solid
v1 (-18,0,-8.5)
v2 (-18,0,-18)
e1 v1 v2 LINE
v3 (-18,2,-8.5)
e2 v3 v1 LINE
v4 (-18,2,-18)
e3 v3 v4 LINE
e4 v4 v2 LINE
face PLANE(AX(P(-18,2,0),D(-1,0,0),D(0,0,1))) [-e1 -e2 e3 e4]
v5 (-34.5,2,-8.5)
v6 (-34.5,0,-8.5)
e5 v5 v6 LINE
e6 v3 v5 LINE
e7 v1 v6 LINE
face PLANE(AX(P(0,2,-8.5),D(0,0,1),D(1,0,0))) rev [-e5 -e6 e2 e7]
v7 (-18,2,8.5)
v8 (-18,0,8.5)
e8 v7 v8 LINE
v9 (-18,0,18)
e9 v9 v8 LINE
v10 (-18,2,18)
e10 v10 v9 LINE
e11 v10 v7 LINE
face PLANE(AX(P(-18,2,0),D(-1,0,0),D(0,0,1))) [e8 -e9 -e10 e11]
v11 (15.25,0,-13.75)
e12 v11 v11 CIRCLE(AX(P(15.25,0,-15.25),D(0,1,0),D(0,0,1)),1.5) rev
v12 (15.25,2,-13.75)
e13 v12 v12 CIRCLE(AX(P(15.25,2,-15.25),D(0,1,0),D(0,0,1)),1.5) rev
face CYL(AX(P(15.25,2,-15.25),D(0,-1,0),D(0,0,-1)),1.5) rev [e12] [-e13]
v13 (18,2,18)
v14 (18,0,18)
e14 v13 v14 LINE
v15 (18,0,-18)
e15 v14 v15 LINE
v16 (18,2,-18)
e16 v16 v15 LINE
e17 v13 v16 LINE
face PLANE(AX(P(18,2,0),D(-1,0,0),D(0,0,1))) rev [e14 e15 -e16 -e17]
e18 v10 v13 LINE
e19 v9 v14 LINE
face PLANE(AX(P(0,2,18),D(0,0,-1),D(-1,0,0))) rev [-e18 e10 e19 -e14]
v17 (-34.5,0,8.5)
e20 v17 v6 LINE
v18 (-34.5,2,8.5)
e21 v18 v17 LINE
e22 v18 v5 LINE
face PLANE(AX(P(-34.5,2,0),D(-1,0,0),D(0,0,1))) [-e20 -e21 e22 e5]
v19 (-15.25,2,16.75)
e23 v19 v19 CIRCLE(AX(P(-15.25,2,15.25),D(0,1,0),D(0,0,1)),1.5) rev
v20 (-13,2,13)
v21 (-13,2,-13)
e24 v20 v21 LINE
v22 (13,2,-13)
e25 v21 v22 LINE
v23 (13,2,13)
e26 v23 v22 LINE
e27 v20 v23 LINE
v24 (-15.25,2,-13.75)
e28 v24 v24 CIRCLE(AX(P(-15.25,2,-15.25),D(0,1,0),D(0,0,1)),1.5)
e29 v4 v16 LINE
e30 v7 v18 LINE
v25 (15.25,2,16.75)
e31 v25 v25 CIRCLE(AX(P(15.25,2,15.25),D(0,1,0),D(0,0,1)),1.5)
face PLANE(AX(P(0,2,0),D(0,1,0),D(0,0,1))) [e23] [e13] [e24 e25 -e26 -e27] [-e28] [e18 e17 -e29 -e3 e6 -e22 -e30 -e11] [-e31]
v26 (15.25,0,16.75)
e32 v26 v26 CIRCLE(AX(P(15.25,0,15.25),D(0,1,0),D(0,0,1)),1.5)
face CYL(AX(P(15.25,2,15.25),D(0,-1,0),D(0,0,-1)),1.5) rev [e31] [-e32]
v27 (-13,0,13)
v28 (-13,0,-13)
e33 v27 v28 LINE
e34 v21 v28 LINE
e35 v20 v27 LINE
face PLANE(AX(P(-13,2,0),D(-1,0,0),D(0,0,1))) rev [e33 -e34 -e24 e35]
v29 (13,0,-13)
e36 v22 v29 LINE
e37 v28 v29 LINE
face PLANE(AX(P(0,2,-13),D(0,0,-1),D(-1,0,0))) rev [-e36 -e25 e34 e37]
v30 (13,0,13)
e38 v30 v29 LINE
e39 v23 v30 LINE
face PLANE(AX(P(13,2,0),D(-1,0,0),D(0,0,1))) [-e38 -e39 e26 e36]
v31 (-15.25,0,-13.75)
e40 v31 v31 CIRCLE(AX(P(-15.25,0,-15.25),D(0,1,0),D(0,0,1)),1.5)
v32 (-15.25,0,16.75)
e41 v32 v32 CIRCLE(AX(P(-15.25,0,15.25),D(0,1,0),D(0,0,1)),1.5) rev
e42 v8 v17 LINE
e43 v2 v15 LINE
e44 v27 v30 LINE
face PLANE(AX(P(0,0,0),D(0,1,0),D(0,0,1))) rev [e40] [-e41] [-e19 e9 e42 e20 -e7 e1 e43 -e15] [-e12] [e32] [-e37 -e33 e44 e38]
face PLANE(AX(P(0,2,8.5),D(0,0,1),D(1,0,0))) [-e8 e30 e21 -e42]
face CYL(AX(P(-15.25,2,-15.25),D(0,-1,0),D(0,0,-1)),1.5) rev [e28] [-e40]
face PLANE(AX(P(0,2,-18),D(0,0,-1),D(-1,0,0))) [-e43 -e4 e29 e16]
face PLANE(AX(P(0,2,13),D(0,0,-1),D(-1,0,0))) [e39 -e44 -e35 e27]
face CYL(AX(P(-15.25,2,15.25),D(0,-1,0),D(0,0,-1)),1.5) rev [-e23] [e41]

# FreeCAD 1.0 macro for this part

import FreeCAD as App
import Part
import Sketcher

V = App.Vector
Q = App.Units.Quantity


def add_polygon(sketch, points):
    """Adds a closed chain of lines whose ends are joined by coincident constraints."""
    first, n = sketch.GeometryCount, len(points)
    for a, b in zip(points, points[1:] + points[:1]):
        sketch.addGeometry(Part.LineSegment(App.Vector(*a, 0), App.Vector(*b, 0)), False)
    for i in range(n):
        sketch.addConstraint(Sketcher.Constraint("Coincident", first + i, 2, first + (i + 1) % n, 1))

doc = App.newDocument("Part")
body = doc.addObject("PartDesign::Body", "Body")

# Sketch on XZ plane
sketch1 = body.newObject("Sketcher::SketchObject", "Sketch")
sketch1.AttachmentSupport = (doc.getObject("XZ_Plane"), [""])
sketch1.MapMode = "FlatFace"
add_polygon(sketch1, [(-34.5, -8.5), (-34.5, 8.5), (-18, 8.5), (-18, 18), (18, 18), (18, -18), (-18, -18), (-18, -8.5)])  # lines 0-7
add_polygon(sketch1, [(-13, -13), (13, -13), (13, 13), (-13, 13)])  # lines 8-11
sketch1.addGeometry(Part.Circle(V(-15.2, -15.2, 0), V(0, 0, 1), 1.5), False)  # 12
sketch1.addGeometry(Part.Circle(V(15.2, -15.2, 0), V(0, 0, 1), 1.5), False)  # 13
sketch1.addGeometry(Part.Circle(V(-15.2, 15.2, 0), V(0, 0, 1), 1.5), False)  # 14
sketch1.addGeometry(Part.Circle(V(15.2, 15.2, 0), V(0, 0, 1), 1.5), False)  # 15
sketch1.addConstraint(Sketcher.Constraint("Vertical", 0))
sketch1.addConstraint(Sketcher.Constraint("Horizontal", 1))
sketch1.addConstraint(Sketcher.Constraint("Vertical", 2))
sketch1.addConstraint(Sketcher.Constraint("Horizontal", 3))
sketch1.addConstraint(Sketcher.Constraint("Vertical", 4))
sketch1.addConstraint(Sketcher.Constraint("Horizontal", 5))
sketch1.addConstraint(Sketcher.Constraint("Vertical", 6))
sketch1.addConstraint(Sketcher.Constraint("Horizontal", 7))
sketch1.addConstraint(Sketcher.Constraint("Horizontal", 8))
sketch1.addConstraint(Sketcher.Constraint("Vertical", 9))
sketch1.addConstraint(Sketcher.Constraint("Horizontal", 10))
sketch1.addConstraint(Sketcher.Constraint("Vertical", 11))
sketch1.addConstraint(Sketcher.Constraint("Equal", 12, 13))
sketch1.addConstraint(Sketcher.Constraint("Equal", 13, 14))
sketch1.addConstraint(Sketcher.Constraint("Equal", 14, 15))
sketch1.addConstraint(Sketcher.Constraint("Symmetric", 13, 3, 14, 3, -1, 1))
sketch1.addConstraint(Sketcher.Constraint("Symmetric", 12, 3, 15, 3, -1, 1))
sketch1.addConstraint(Sketcher.Constraint("Symmetric", 2, 2, 4, 2, -1, 1))
sketch1.addConstraint(Sketcher.Constraint("Symmetric", 8, 2, 10, 2, -1, 1))
sketch1.addConstraint(Sketcher.Constraint("Symmetric", 12, 3, 13, 3, -2))
sketch1.addConstraint(Sketcher.Constraint("Symmetric", 1, 2, 6, 2, -1))
sketch1.addConstraint(Sketcher.Constraint("Equal", 5, 4))
sketch1.addConstraint(Sketcher.Constraint("Equal", 10, 9))
sketch1.addConstraint(Sketcher.Constraint("Diameter", 12, Q("3 mm")))
sketch1.addConstraint(Sketcher.Constraint("DistanceX", 3, 1, 3, 2, Q("36 mm")))
sketch1.addConstraint(Sketcher.Constraint("DistanceX", 8, 1, 8, 2, Q("26 mm")))
sketch1.addConstraint(Sketcher.Constraint("DistanceY", 0, 1, 0, 2, Q("17 mm")))
sketch1.addConstraint(Sketcher.Constraint("DistanceX", 1, 1, 1, 2, Q("16.5 mm")))
sketch1.addConstraint(Sketcher.Constraint("DistanceX", 12, 3, 13, 3, Q("30.5 mm")))
sketch1.addConstraint(Sketcher.Constraint("DistanceY", 12, 3, 14, 3, Q("30.5 mm")))
pad1 = body.newObject("PartDesign::Pad", "Pad")
pad1.Profile = sketch1
pad1.Length = 2
pad1.Reversed = True

doc.recompute()
